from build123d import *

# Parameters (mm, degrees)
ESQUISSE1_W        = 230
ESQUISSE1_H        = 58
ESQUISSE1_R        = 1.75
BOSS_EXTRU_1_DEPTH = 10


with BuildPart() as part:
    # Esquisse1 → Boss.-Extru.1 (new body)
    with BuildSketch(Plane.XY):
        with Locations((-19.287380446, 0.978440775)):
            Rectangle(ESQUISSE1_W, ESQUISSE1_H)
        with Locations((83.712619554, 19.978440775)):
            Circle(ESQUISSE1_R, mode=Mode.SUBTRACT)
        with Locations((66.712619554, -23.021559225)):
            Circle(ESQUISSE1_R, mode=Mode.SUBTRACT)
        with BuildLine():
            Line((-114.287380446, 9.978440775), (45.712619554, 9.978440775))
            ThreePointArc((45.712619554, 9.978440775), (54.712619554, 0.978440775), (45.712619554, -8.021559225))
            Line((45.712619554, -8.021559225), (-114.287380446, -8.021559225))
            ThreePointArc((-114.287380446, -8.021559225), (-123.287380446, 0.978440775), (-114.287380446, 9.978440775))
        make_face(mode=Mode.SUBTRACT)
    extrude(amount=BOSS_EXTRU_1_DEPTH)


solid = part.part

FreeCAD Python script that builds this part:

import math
import FreeCAD as App
import Part
import Sketcher
Q = App.Units.Quantity

doc = App.newDocument("Part")
body = doc.addObject("PartDesign::Body", "Body")

# Sketch on XY plane
sketch1 = doc.addObject("Sketcher::SketchObject", "Sketch")
body.addObject(sketch1)
sketch1.AttachmentSupport = (doc.XY_Plane, [""])
sketch1.MapMode = "FlatFace"
sketch1.addGeometry([
    Part.LineSegment(App.Vector(-134.3, 30, 0), App.Vector(-134.3, -28, 0)),  # 0
    Part.LineSegment(App.Vector(-134.3, -28, 0), App.Vector(95.7, -28, 0)),  # 1
    Part.LineSegment(App.Vector(95.7, -28, 0), App.Vector(95.7, 30, 0)),  # 2
    Part.LineSegment(App.Vector(95.7, 30, 0), App.Vector(-134.3, 30, 0)),  # 3
    Part.Circle(App.Vector(66.7, -23, 0), App.Vector(0, 0, 1), 1.8),  # 4
    Part.ArcOfCircle(Part.Circle(App.Vector(-114.3, 1, 0), App.Vector(0, 0, 1), 9), math.radians(90), math.radians(270)),  # 5
    Part.LineSegment(App.Vector(-114.3, 10, 0), App.Vector(45.7, 10, 0)),  # 6
    Part.ArcOfCircle(Part.Circle(App.Vector(45.7, 1, 0), App.Vector(0, 0, 1), 9), math.radians(-90), math.radians(90)),  # 7
    Part.LineSegment(App.Vector(45.7, -8, 0), App.Vector(-114.3, -8, 0)),  # 8
    Part.Circle(App.Vector(83.7, 20, 0), App.Vector(0, 0, 1), 1.8),  # 9
], False)
sketch1.addConstraint([
    Sketcher.Constraint("Coincident", 0, 2, 1, 1),
    Sketcher.Constraint("Coincident", 1, 2, 2, 1),
    Sketcher.Constraint("Coincident", 2, 2, 3, 1),
    Sketcher.Constraint("Coincident", 3, 2, 0, 1),
    Sketcher.Constraint("Tangent", 5, 1, 6, 1),
    Sketcher.Constraint("Tangent", 6, 2, 7, 2),
    Sketcher.Constraint("Tangent", 7, 1, 8, 1),
    Sketcher.Constraint("Tangent", 8, 2, 5, 2),
    Sketcher.Constraint("Vertical", 0),
    Sketcher.Constraint("Horizontal", 1),
    Sketcher.Constraint("Vertical", 2),
    Sketcher.Constraint("Horizontal", 3),
    Sketcher.Constraint("Horizontal", 6),
    Sketcher.Constraint("Horizontal", 8),
    Sketcher.Constraint("Equal", 4, 9),
    Sketcher.Constraint("Radius", 5, Q("9 mm")),
    Sketcher.Constraint("Diameter", 4, Q("3.5 mm")),
    Sketcher.Constraint("DistanceX", 1, 1, 1, 2, Q("230 mm")),
    Sketcher.Constraint("DistanceX", 6, 1, 6, 2, Q("160 mm")),
    Sketcher.Constraint("DistanceY", 0, 2, 0, 1, Q("58 mm")),
    Sketcher.Constraint("DistanceX", 5, 3, 4, 3, Q("181 mm")),
    Sketcher.Constraint("DistanceY", 4, 3, 5, 3, Q("24 mm")),
    Sketcher.Constraint("DistanceX", 7, 3, 9, 3, Q("38 mm")),
    Sketcher.Constraint("DistanceY", 7, 3, 9, 3, Q("19 mm")),
    Sketcher.Constraint("DistanceX", 0, 2, 5, 3, Q("20 mm")),
    Sketcher.Constraint("DistanceY", 0, 2, 5, 3, Q("29 mm")),
    Sketcher.Constraint("DistanceX", -1, 1, 4, 3, Q("66.71262 mm")),
    Sketcher.Constraint("DistanceY", 4, 3, -1, 1, Q("23.021559 mm")),
])
pad1 = doc.addObject("PartDesign::Pad", "Pad")
body.addObject(pad1)
pad1.Profile = sketch1
pad1.Length = 10

doc.recompute()
